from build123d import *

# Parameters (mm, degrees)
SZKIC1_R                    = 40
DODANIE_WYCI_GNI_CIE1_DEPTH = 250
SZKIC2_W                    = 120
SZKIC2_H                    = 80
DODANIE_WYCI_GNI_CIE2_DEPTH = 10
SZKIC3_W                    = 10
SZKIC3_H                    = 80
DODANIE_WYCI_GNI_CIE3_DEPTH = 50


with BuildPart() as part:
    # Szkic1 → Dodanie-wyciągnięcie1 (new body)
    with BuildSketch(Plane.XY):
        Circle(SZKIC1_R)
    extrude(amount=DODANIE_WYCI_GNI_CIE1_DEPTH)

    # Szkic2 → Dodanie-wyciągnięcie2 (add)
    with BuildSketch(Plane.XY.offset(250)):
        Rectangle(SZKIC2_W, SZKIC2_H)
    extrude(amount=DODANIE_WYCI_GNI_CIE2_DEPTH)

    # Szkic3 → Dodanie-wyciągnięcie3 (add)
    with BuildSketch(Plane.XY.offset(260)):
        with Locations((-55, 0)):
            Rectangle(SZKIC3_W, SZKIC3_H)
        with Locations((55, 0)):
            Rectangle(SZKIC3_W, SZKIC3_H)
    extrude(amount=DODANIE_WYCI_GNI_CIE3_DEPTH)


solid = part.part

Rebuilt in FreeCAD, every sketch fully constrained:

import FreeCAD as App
import Part
import Sketcher
from FreeCAD import Vector
Q = App.Units.Quantity


def add_polygon(sketch, points):
    """Adds a closed chain of lines whose ends are joined by coincident constraints."""
    first, n = sketch.GeometryCount, len(points)
    for a, b in zip(points, points[1:] + points[:1]):
        sketch.addGeometry(Part.LineSegment(App.Vector(*a, 0), App.Vector(*b, 0)), False)
    for i in range(n):
        sketch.addConstraint(Sketcher.Constraint("Coincident", first + i, 2, first + (i + 1) % n, 1))

doc = App.newDocument("Part")
body = doc.addObject("PartDesign::Body", "Body")

sketch1 = body.newObject("Sketcher::SketchObject", "Sketch")
sketch1.AttachmentSupport = (doc.getObject("XY_Plane"), [""])
sketch1.MapMode = "FlatFace"
sketch1.addGeometry(Part.Circle(Vector(0, 0, 0), Vector(0, 0, 1), 40), False)
sketch1.addConstraint([
    Sketcher.Constraint("Coincident", 0, 3, -1, 1),
    Sketcher.Constraint("Diameter", 0, Q("80 mm")),
])
pad1 = body.newObject("PartDesign::Pad", "Pad")
pad1.Profile = sketch1
pad1.Length = 250

sketch2 = body.newObject("Sketcher::SketchObject", "Sketch001")
sketch2.AttachmentSupport = (doc.getObject("XY_Plane"), [""])
sketch2.MapMode = "FlatFace"
sketch2.AttachmentOffset = App.Placement(Vector(0, 0, 250), App.Rotation())
add_polygon(sketch2, [(-60, 40), (-60, -40), (60, -40), (60, 40)])
sketch2.addConstraint([
    Sketcher.Constraint("Vertical", 0),
    Sketcher.Constraint("Horizontal", 1),
    Sketcher.Constraint("Vertical", 2),
    Sketcher.Constraint("Horizontal", 3),
    Sketcher.Constraint("Symmetric", 0, 2, 2, 2, -1, 1),
    Sketcher.Constraint("DistanceX", 1, 1, 1, 2, Q("120 mm")),
    Sketcher.Constraint("DistanceY", 0, 2, 0, 1, Q("80 mm")),
])
pad2 = body.newObject("PartDesign::Pad", "Pad001")
pad2.Profile = sketch2
pad2.Length = 10

sketch3 = body.newObject("Sketcher::SketchObject", "Sketch002")
sketch3.AttachmentSupport = (doc.getObject("XY_Plane"), [""])
sketch3.MapMode = "FlatFace"
sketch3.AttachmentOffset = App.Placement(Vector(0, 0, 260), App.Rotation())
add_polygon(sketch3, [(-60, 40), (-60, -40), (-50, -40), (-50, 40)])
add_polygon(sketch3, [(50, 40), (50, -40), (60, -40), (60, 40)])
sketch3.addConstraint([
    Sketcher.Constraint("Vertical", 0),
    Sketcher.Constraint("Horizontal", 1),
    Sketcher.Constraint("Vertical", 2),
    Sketcher.Constraint("Horizontal", 3),
    Sketcher.Constraint("Vertical", 4),
    Sketcher.Constraint("Horizontal", 5),
    Sketcher.Constraint("Vertical", 6),
    Sketcher.Constraint("Horizontal", 7),
    Sketcher.Constraint("Symmetric", 2, 2, 4, 2, -1, 1),
    Sketcher.Constraint("Symmetric", 0, 2, 6, 2, -1, 1),
    Sketcher.Constraint("Horizontal", 1, 2, 4, 2),
    Sketcher.Constraint("DistanceX", 1, 1, 1, 2, Q("10 mm")),
    Sketcher.Constraint("DistanceY", 0, 2, 0, 1, Q("80 mm")),
    Sketcher.Constraint("DistanceX", 0, 2, -1, 1, Q("60 mm")),
])
pad3 = body.newObject("PartDesign::Pad", "Pad002")
pad3.Profile = sketch3
pad3.Length = 50

doc.recompute()
